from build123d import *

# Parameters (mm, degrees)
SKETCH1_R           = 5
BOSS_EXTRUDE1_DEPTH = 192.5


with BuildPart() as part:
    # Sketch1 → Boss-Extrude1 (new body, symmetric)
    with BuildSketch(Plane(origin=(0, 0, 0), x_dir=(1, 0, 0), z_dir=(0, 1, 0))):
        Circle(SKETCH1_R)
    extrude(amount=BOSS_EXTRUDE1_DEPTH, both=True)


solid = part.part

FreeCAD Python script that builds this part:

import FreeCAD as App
import Part
import Sketcher

doc = App.newDocument("Part")
body = doc.addObject("PartDesign::Body", "Body")

# Sketch on XZ plane
sketch1 = body.newObject("Sketcher::SketchObject", "Sketch")
sketch1.AttachmentSupport = (doc.getObject("XZ_Plane"), [""])
sketch1.MapMode = "FlatFace"
sketch1.addGeometry(Part.Circle(App.Vector(0, 0, 0), App.Vector(0, 0, 1), 5), False)
sketch1.addConstraint([
    Sketcher.Constraint("Coincident", 0, 3, -1, 1),
    Sketcher.Constraint("Diameter", 0, 10.0),
])
pad1 = body.newObject("PartDesign::Pad", "Pad")
pad1.Profile = sketch1
pad1.Length = 385
pad1.Midplane = True

doc.recompute()
